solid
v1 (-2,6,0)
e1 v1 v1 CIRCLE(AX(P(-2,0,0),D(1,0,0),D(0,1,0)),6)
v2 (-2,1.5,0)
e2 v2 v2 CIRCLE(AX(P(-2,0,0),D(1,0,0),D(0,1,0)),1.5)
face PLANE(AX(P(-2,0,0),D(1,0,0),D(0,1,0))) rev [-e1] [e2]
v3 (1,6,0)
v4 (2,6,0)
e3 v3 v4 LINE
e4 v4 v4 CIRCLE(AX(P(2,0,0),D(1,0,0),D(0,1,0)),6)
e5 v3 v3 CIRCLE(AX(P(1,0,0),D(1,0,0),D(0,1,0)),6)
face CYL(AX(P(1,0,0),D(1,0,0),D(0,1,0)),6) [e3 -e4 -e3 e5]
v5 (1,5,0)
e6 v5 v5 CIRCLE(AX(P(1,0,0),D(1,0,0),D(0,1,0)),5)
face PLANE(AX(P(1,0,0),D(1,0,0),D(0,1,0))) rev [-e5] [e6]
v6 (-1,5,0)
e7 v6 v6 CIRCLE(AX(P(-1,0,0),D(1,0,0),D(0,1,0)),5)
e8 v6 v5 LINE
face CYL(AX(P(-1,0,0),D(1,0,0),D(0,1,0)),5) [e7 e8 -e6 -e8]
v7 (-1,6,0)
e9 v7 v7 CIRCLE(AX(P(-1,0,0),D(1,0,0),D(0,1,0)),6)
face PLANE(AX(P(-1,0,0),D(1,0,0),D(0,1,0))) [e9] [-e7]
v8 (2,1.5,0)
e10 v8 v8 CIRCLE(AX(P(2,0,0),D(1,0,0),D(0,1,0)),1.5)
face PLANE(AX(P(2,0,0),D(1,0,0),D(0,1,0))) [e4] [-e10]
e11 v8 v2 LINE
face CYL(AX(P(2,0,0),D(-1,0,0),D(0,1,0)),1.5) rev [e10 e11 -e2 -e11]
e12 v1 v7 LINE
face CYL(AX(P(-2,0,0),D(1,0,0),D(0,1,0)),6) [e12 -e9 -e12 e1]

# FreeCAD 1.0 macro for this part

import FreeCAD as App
import Part
import Sketcher
from FreeCAD import Vector

doc = App.newDocument("Part")
params = doc.addObject("Spreadsheet::Sheet", "Params")
for row, (alias, value) in enumerate([
    ("sketch1_width", "1 mm"),
    ("sketch1_width2", "2 mm"),
    ("revolution_angle", "360 deg"),
], start=1):
    params.set(f"A{row}", alias)
    params.set(f"B{row}", "=" + value)
    params.setAlias(f"B{row}", alias)

body = doc.addObject("PartDesign::Body", "Body")

# Sketch on XY plane
sketch1 = body.newObject("Sketcher::SketchObject", "Sketch")
sketch1.AttachmentSupport = (doc.getObject("XY_Plane"), [""])
sketch1.MapMode = "FlatFace"
sketch1.addGeometry([
    Part.LineSegment(Vector(-1, 6, 0), Vector(-2, 6, 0)),  # 0
    Part.LineSegment(Vector(-2, 6, 0), Vector(-2, 1.5, 0)),  # 1
    Part.LineSegment(Vector(-2, 1.5, 0), Vector(2, 1.5, 0)),  # 2
    Part.LineSegment(Vector(2, 1.5, 0), Vector(2, 6, 0)),  # 3
    Part.LineSegment(Vector(2, 6, 0), Vector(1, 6, 0)),  # 4
    Part.LineSegment(Vector(1, 6, 0), Vector(1, 5, 0)),  # 5
    Part.LineSegment(Vector(1, 5, 0), Vector(-1, 5, 0)),  # 6
    Part.LineSegment(Vector(-1, 5, 0), Vector(-1, 6, 0)),  # 7
], False)
sketch1.addConstraint([
    Sketcher.Constraint("Coincident", 0, 2, 1, 1),
    Sketcher.Constraint("Coincident", 1, 2, 2, 1),
    Sketcher.Constraint("Coincident", 2, 2, 3, 1),
    Sketcher.Constraint("Coincident", 3, 2, 4, 1),
    Sketcher.Constraint("Coincident", 4, 2, 5, 1),
    Sketcher.Constraint("Coincident", 5, 2, 6, 1),
    Sketcher.Constraint("Coincident", 6, 2, 7, 1),
    Sketcher.Constraint("Coincident", 7, 2, 0, 1),
    Sketcher.Constraint("Horizontal", 0),
    Sketcher.Constraint("Vertical", 1),
    Sketcher.Constraint("Horizontal", 2),
    Sketcher.Constraint("Vertical", 3),
    Sketcher.Constraint("Horizontal", 4),
    Sketcher.Constraint("Vertical", 5),
    Sketcher.Constraint("Horizontal", 6),
    Sketcher.Constraint("Vertical", 7),
    Sketcher.Constraint("Symmetric", 0, 2, 3, 2, -2),
    Sketcher.Constraint("Equal", 0, 4),
    Sketcher.Constraint("Equal", 4, 5),
    Sketcher.Constraint("DistanceX", 0, 2, 0, 1, 1.0),
    Sketcher.Constraint("DistanceX", 6, 2, 6, 1, 2.0),
    Sketcher.Constraint("DistanceY", -1, 1, 5, 2, 5.0),
    Sketcher.Constraint("DistanceY", -1, 1, 1, 2, 1.5),
])
sketch1.setExpression("Constraints[19]", "Params.sketch1_width")
sketch1.setExpression("Constraints[20]", "Params.sketch1_width2")
revolution = body.newObject("PartDesign::Revolution", "Revolution")
revolution.Profile = sketch1
revolution.ReferenceAxis = (sketch1, ["H_Axis"])
revolution.setExpression("Angle", "Params.revolution_angle")

doc.recompute()
